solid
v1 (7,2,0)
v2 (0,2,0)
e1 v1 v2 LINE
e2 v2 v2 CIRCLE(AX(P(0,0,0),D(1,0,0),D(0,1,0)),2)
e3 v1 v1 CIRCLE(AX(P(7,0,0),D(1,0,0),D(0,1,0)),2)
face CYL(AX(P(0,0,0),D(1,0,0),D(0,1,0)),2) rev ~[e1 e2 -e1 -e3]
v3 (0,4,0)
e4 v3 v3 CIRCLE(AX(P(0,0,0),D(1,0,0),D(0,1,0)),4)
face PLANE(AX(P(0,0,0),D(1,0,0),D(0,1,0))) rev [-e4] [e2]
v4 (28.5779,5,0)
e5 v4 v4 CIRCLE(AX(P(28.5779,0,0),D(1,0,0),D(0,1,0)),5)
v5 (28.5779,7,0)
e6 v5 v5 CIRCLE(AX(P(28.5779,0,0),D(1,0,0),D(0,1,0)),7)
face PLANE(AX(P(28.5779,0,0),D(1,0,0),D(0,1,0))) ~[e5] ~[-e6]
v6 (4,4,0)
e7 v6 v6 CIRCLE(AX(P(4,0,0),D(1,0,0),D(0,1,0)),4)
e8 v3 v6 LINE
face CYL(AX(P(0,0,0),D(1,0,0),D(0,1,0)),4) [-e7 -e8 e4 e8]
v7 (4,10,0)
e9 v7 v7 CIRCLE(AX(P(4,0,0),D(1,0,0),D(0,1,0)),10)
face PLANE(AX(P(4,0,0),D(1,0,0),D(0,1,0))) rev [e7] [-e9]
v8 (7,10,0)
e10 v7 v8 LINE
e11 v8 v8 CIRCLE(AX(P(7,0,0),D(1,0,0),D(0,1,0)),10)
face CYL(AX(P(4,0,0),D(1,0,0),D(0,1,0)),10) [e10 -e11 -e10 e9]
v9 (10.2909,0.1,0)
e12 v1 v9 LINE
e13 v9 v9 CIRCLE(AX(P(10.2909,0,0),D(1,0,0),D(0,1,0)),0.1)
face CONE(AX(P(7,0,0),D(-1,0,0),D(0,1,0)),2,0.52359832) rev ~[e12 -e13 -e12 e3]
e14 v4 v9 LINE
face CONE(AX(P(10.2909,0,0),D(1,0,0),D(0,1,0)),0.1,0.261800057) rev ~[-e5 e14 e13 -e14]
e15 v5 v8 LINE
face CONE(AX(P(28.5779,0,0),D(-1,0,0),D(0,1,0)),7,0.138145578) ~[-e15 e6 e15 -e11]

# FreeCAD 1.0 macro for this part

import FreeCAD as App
import Part
import Sketcher
Q = App.Units.Quantity


def add_polygon(sketch, points):
    """Adds a closed chain of lines whose ends are joined by coincident constraints."""
    first, n = sketch.GeometryCount, len(points)
    for a, b in zip(points, points[1:] + points[:1]):
        sketch.addGeometry(Part.LineSegment(App.Vector(*a, 0), App.Vector(*b, 0)), False)
    for i in range(n):
        sketch.addConstraint(Sketcher.Constraint("Coincident", first + i, 2, first + (i + 1) % n, 1))

doc = App.newDocument("Part")
params = doc.addObject("Spreadsheet::Sheet", "Params")
for row, (alias, value) in enumerate([
    ("sketch1_width", "3 mm"),
    ("sketch1_width2", "4 mm"),
    ("sketch1_height", "2 mm"),
    ("revolution_angle", "360 deg"),
], start=1):
    params.set(f"A{row}", alias)
    params.set(f"B{row}", "=" + value)
    params.setAlias(f"B{row}", alias)

body = doc.addObject("PartDesign::Body", "Body")

sketch1 = body.newObject("Sketcher::SketchObject", "Sketch")
sketch1.AttachmentSupport = (doc.getObject("XY_Plane"), [""])
sketch1.MapMode = "FlatFace"
add_polygon(sketch1, [(0, 4), (0, 2), (7, 2), (10.3, 0.1), (28.6, 5), (28.6, 7), (7, 10), (4, 10), (4, 4)])
sketch1.addConstraint([
    Sketcher.Constraint("Vertical", 0),
    Sketcher.Constraint("Horizontal", 1),
    Sketcher.Constraint("Vertical", 4),
    Sketcher.Constraint("Horizontal", 6),
    Sketcher.Constraint("Vertical", 7),
    Sketcher.Constraint("Horizontal", 8),
    Sketcher.Constraint("PointOnObject", 0, 2, -2),
    Sketcher.Constraint("Vertical", 1, 2, 5, 2),
    Sketcher.Constraint("Equal", 0, 4),
    Sketcher.Constraint("DistanceX", 6, 2, 6, 1, 3.0),
    Sketcher.Constraint("DistanceX", 8, 2, 8, 1, 4.0),
    Sketcher.Constraint("DistanceY", 0, 2, 0, 1, 2.0),
    Sketcher.Constraint("Angle", 2, Q("-30 deg")),
    Sketcher.Constraint("Angle", 3, Q("15 deg")),
    Sketcher.Constraint("DistanceY", -1, 1, 0, 2, 2.0),
    Sketcher.Constraint("DistanceY", -1, 1, 3, 2, 5.0),
    Sketcher.Constraint("DistanceY", 1, 2, 5, 2, 8.0),
    Sketcher.Constraint("DistanceY", -1, 1, 2, 2, 0.1),
])
sketch1.setExpression("Constraints[18]", "Params.sketch1_width")
sketch1.setExpression("Constraints[19]", "Params.sketch1_width2")
sketch1.setExpression("Constraints[20]", "Params.sketch1_height")
revolution = body.newObject("PartDesign::Revolution", "Revolution")
revolution.Profile = sketch1
revolution.ReferenceAxis = (sketch1, ["H_Axis"])
revolution.setExpression("Angle", "Params.revolution_angle")

doc.recompute()
